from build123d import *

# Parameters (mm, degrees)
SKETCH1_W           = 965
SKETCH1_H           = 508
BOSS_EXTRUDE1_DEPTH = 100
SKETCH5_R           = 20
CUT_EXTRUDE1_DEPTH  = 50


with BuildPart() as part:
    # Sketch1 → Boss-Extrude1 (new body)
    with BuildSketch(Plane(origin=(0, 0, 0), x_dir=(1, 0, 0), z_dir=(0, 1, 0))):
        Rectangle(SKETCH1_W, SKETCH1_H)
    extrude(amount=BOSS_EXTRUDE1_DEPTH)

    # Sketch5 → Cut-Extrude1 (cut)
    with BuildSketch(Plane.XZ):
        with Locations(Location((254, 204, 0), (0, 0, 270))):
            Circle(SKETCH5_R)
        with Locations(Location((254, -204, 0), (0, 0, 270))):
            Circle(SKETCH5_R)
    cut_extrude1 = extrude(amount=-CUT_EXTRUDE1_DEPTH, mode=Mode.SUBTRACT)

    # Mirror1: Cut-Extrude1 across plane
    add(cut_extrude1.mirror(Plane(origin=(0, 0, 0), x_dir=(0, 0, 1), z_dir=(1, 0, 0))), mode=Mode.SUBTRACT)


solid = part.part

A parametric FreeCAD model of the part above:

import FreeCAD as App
import Part
import Sketcher

V = App.Vector


def add_polygon(sketch, points):
    """Adds a closed chain of lines whose ends are joined by coincident constraints."""
    first, n = sketch.GeometryCount, len(points)
    for a, b in zip(points, points[1:] + points[:1]):
        sketch.addGeometry(Part.LineSegment(App.Vector(*a, 0), App.Vector(*b, 0)), False)
    for i in range(n):
        sketch.addConstraint(Sketcher.Constraint("Coincident", first + i, 2, first + (i + 1) % n, 1))

doc = App.newDocument("Part")
body = doc.addObject("PartDesign::Body", "Body")

# Sketch on XZ plane
sketch1 = body.newObject("Sketcher::SketchObject", "Sketch")
sketch1.AttachmentSupport = (doc.getObject("XZ_Plane"), [""])
sketch1.MapMode = "FlatFace"
add_polygon(sketch1, [(-482, -254), (-482, 254), (482, 254), (482, -254)])  # lines 0-3
sketch1.addConstraint([
    Sketcher.Constraint("Vertical", 0),
    Sketcher.Constraint("Horizontal", 1),
    Sketcher.Constraint("Vertical", 2),
    Sketcher.Constraint("Horizontal", 3),
    Sketcher.Constraint("Symmetric", 0, 2, 2, 2, -1, 1),
    Sketcher.Constraint("DistanceX", 1, 1, 1, 2, 965.0),
    Sketcher.Constraint("DistanceY", 0, 1, 0, 2, 508.0),
])
pad1 = body.newObject("PartDesign::Pad", "Pad")
pad1.Profile = sketch1
pad1.Length = 100
pad1.Reversed = True

# Sketch on XZ plane
sketch2 = body.newObject("Sketcher::SketchObject", "Sketch001")
sketch2.AttachmentSupport = (doc.getObject("XZ_Plane"), [""])
sketch2.MapMode = "FlatFace"
sketch2.addGeometry([
    Part.Circle(V(254, 204, 0), V(0, 0, 1), 20),
    Part.Circle(V(254, -204, 0), V(0, 0, 1), 20),
], False)
sketch2.addConstraint([
    Sketcher.Constraint("Equal", 0, 1),
    Sketcher.Constraint("Symmetric", 0, 3, 1, 3, -1),
    Sketcher.Constraint("Diameter", 0, 40.0),
    Sketcher.Constraint("DistanceX", -1, 1, 0, 3, 254.0),
    Sketcher.Constraint("DistanceY", -1, 1, 0, 3, 204.0),
])
pocket1 = body.newObject("PartDesign::Pocket", "Pocket")
pocket1.Profile = sketch2
pocket1.Length = 50
doc.recompute()

mirrored = body.newObject("PartDesign::Mirrored", "Mirrored")
mirrored.Originals = [pocket1]
mirrored.MirrorPlane = (doc.getObject("YZ_Plane"), [""])
body.Tip = mirrored

doc.recompute()
